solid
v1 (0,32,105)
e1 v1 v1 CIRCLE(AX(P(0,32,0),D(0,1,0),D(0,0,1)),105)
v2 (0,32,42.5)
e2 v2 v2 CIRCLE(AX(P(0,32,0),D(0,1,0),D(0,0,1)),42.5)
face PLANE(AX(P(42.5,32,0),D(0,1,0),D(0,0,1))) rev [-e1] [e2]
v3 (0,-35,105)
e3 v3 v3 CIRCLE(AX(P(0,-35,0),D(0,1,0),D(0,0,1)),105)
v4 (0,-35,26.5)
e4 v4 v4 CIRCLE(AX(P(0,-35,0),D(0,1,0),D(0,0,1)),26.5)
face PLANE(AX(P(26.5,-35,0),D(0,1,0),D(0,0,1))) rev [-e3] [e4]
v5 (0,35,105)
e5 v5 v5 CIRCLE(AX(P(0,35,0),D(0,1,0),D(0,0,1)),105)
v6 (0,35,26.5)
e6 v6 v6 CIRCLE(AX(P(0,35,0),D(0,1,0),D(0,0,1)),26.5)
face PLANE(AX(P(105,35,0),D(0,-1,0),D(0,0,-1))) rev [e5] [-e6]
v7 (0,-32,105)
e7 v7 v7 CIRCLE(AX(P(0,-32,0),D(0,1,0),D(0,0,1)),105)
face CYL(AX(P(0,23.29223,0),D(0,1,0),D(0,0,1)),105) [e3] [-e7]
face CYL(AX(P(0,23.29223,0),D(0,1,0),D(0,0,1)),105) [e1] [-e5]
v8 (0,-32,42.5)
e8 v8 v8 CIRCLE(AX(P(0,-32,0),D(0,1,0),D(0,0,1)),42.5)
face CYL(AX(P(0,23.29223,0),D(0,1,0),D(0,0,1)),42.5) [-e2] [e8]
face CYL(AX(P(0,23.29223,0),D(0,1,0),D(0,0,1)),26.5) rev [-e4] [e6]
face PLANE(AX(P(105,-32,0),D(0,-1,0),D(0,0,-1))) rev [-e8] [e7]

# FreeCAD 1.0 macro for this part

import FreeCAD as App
import Part
import Sketcher

V = App.Vector

doc = App.newDocument("Part")
body = doc.addObject("PartDesign::Body", "Body")

# Sketch on XY plane
sketch1 = body.newObject("Sketcher::SketchObject", "Sketch")
sketch1.AttachmentSupport = (doc.getObject("XY_Plane"), [""])
sketch1.MapMode = "FlatFace"
sketch1.addGeometry([
    Part.LineSegment(V(26.5, 35, 0), V(26.5, -35, 0)),  # 0
    Part.LineSegment(V(26.5, -35, 0), V(105, -35, 0)),  # 1
    Part.LineSegment(V(105, -35, 0), V(105, -32, 0)),  # 2
    Part.LineSegment(V(105, -32, 0), V(42.5, -32, 0)),  # 3
    Part.LineSegment(V(42.5, -32, 0), V(42.5, 32, 0)),  # 4
    Part.LineSegment(V(42.5, 32, 0), V(105, 32, 0)),  # 5
    Part.LineSegment(V(105, 32, 0), V(105, 35, 0)),  # 6
    Part.LineSegment(V(105, 35, 0), V(26.5, 35, 0)),  # 7
], False)
sketch1.addConstraint([
    Sketcher.Constraint("Coincident", 0, 2, 1, 1),
    Sketcher.Constraint("Coincident", 1, 2, 2, 1),
    Sketcher.Constraint("Coincident", 2, 2, 3, 1),
    Sketcher.Constraint("Coincident", 3, 2, 4, 1),
    Sketcher.Constraint("Coincident", 4, 2, 5, 1),
    Sketcher.Constraint("Coincident", 5, 2, 6, 1),
    Sketcher.Constraint("Coincident", 6, 2, 7, 1),
    Sketcher.Constraint("Coincident", 7, 2, 0, 1),
    Sketcher.Constraint("Vertical", 0),
    Sketcher.Constraint("Horizontal", 1),
    Sketcher.Constraint("Vertical", 2),
    Sketcher.Constraint("Horizontal", 3),
    Sketcher.Constraint("Vertical", 4),
    Sketcher.Constraint("Horizontal", 5),
    Sketcher.Constraint("Vertical", 6),
    Sketcher.Constraint("Horizontal", 7),
    Sketcher.Constraint("Symmetric", 2, 2, 5, 2, -1),
    Sketcher.Constraint("Equal", 2, 6),
    Sketcher.Constraint("DistanceY", 0, 2, 0, 1, 70.0),
    Sketcher.Constraint("DistanceY", 2, 1, 2, 2, 3.0),
    Sketcher.Constraint("DistanceX", 1, 1, 1, 2, 78.5),
    Sketcher.Constraint("DistanceX", 3, 2, 3, 1, 62.5),
    Sketcher.Constraint("DistanceX", -1, 1, 1, 2, 105.0),
])
revolution = body.newObject("PartDesign::Revolution", "Revolution")
revolution.Profile = sketch1
revolution.ReferenceAxis = (sketch1, ["V_Axis"])
revolution.Angle = 360

doc.recompute()
